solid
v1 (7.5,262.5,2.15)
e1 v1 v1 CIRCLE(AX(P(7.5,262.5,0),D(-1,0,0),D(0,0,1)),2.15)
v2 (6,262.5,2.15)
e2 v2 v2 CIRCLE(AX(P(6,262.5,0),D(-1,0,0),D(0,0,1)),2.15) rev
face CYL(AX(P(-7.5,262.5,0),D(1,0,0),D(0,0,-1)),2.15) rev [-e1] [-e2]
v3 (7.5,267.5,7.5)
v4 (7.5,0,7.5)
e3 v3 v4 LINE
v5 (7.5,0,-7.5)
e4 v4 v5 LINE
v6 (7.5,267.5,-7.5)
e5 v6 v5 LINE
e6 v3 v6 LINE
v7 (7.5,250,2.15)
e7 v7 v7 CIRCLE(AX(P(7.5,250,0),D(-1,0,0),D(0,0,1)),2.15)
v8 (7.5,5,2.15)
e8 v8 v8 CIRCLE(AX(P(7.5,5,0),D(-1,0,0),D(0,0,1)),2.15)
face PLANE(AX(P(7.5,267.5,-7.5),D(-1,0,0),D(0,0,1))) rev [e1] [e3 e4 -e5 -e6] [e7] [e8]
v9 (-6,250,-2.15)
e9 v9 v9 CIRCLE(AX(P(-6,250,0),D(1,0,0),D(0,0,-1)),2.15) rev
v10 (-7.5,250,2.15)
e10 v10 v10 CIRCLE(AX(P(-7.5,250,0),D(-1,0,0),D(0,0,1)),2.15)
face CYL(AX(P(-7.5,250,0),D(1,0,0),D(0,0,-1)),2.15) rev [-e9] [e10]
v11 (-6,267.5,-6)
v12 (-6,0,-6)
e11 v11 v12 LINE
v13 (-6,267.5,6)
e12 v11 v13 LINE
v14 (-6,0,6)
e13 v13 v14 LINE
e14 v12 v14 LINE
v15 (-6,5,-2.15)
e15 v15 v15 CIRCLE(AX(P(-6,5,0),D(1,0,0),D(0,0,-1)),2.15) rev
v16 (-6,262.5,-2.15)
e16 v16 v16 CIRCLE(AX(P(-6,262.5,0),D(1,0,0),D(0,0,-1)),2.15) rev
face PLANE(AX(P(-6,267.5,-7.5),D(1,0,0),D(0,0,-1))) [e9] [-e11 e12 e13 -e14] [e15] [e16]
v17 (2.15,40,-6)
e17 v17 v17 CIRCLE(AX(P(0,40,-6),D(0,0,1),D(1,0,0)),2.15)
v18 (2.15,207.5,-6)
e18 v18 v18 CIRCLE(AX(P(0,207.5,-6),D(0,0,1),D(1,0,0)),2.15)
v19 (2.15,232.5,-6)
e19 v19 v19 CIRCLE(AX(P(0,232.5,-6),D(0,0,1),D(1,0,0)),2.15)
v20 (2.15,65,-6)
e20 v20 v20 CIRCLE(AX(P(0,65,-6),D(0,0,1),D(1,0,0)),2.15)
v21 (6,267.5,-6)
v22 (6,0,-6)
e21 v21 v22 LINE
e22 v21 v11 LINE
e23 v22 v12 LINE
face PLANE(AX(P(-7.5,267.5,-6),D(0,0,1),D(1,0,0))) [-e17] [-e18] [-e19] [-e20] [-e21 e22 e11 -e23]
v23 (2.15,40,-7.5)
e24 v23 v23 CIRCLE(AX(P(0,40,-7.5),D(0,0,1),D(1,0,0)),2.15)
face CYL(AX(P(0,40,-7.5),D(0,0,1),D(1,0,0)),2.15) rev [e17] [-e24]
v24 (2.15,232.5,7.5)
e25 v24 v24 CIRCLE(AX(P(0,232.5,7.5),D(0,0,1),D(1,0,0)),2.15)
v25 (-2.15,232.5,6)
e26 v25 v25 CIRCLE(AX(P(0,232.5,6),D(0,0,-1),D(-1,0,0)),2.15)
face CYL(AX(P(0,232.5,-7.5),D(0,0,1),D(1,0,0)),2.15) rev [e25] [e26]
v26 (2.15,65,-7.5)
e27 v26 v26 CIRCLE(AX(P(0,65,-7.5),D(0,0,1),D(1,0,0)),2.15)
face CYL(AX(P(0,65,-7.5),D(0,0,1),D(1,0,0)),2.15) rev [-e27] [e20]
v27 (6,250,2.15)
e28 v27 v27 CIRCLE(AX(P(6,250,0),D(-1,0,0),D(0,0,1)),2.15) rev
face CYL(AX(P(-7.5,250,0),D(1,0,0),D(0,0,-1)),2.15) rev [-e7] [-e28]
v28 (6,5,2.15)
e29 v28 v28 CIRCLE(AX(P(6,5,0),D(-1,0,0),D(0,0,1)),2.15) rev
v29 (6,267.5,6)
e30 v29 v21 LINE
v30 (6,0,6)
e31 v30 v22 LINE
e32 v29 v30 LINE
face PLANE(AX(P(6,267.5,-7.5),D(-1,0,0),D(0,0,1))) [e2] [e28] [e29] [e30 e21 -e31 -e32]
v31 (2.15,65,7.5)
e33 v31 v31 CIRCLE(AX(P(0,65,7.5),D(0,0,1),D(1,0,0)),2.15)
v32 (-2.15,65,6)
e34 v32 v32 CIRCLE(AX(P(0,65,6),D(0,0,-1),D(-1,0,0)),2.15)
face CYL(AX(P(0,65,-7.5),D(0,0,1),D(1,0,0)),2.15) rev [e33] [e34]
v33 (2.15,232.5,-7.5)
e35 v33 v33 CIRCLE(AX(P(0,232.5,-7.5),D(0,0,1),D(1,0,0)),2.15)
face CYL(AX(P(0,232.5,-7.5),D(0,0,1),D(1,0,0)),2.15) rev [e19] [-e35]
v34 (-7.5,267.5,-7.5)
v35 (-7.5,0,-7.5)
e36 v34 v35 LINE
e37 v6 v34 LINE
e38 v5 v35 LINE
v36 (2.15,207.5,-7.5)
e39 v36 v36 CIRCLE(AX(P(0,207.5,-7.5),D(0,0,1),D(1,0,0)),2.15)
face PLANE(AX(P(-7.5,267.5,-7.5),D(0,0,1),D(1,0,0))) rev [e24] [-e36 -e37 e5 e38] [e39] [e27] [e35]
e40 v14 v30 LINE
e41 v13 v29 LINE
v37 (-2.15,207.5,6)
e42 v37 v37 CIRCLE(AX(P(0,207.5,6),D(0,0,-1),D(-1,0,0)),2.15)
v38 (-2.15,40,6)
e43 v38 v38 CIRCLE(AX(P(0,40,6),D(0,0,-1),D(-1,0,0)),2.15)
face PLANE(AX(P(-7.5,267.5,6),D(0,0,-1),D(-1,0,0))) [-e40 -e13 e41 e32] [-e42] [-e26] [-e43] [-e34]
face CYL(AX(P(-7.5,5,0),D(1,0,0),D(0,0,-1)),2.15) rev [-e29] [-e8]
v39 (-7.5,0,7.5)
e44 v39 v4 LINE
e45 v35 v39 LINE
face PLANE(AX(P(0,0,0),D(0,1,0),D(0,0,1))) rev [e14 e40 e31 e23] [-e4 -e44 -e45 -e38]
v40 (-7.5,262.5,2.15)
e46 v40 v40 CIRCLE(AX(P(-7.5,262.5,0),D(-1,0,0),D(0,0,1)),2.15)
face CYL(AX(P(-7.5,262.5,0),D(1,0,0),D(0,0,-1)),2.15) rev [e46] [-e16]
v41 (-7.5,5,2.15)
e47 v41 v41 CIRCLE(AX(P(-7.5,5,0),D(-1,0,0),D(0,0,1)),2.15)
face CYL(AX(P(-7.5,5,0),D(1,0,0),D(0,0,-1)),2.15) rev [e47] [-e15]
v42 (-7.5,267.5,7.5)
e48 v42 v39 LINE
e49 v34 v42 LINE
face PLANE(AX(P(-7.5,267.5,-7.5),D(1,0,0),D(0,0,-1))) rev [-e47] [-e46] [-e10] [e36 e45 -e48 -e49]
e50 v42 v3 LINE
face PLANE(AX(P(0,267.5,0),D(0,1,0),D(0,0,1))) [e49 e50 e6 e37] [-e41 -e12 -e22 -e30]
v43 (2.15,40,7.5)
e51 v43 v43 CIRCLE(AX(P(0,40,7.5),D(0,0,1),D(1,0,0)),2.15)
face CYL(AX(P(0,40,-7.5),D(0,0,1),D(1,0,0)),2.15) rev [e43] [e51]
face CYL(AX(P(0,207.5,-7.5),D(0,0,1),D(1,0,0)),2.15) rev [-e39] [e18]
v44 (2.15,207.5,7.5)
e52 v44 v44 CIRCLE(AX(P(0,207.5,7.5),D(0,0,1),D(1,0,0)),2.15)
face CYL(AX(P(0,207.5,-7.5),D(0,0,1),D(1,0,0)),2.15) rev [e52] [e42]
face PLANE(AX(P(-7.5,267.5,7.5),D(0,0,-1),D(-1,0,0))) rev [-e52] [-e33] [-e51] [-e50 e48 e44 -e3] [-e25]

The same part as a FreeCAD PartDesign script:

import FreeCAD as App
import Part
import Sketcher

V = App.Vector
Q = App.Units.Quantity

doc = App.newDocument("Part")
body = doc.addObject("PartDesign::Body", "Body")

sketch1 = doc.addObject("Sketcher::SketchObject", "Sketch")
body.addObject(sketch1)
sketch1.AttachmentSupport = (doc.XZ_Plane, [""])
sketch1.MapMode = "FlatFace"
sketch1.addGeometry([
    Part.LineSegment(V(-8, -8, 0), V(-8, 8, 0)),
    Part.LineSegment(V(-8, 8, 0), V(8, 8, 0)),
    Part.LineSegment(V(8, 8, 0), V(8, -8, 0)),
    Part.LineSegment(V(8, -8, 0), V(-8, -8, 0)),
    Part.LineSegment(V(6, 6, 0), V(-6, 6, 0)),
    Part.LineSegment(V(-6, 6, 0), V(-6, -6, 0)),
    Part.LineSegment(V(-6, -6, 0), V(6, -6, 0)),
    Part.LineSegment(V(6, -6, 0), V(6, 6, 0)),
], False)
sketch1.addConstraint([
    Sketcher.Constraint("Coincident", 0, 2, 1, 1),
    Sketcher.Constraint("Coincident", 1, 2, 2, 1),
    Sketcher.Constraint("Coincident", 2, 2, 3, 1),
    Sketcher.Constraint("Coincident", 3, 2, 0, 1),
    Sketcher.Constraint("Coincident", 4, 2, 5, 1),
    Sketcher.Constraint("Coincident", 5, 2, 6, 1),
    Sketcher.Constraint("Coincident", 6, 2, 7, 1),
    Sketcher.Constraint("Coincident", 7, 2, 4, 1),
    Sketcher.Constraint("Vertical", 0),
    Sketcher.Constraint("Horizontal", 1),
    Sketcher.Constraint("Vertical", 2),
    Sketcher.Constraint("Horizontal", 3),
    Sketcher.Constraint("Horizontal", 4),
    Sketcher.Constraint("Vertical", 5),
    Sketcher.Constraint("Horizontal", 6),
    Sketcher.Constraint("Vertical", 7),
    Sketcher.Constraint("Symmetric", 0, 2, 2, 2, -1, 1),
    Sketcher.Constraint("Symmetric", 4, 2, 6, 2, -1, 1),
    Sketcher.Constraint("Equal", 3, 0),
    Sketcher.Constraint("Equal", 6, 5),
    Sketcher.Constraint("DistanceX", 1, 1, 1, 2, Q("15 mm")),
    Sketcher.Constraint("DistanceX", 4, 2, 4, 1, Q("12 mm")),
])
pad1 = doc.addObject("PartDesign::Pad", "Pad")
body.addObject(pad1)
pad1.Profile = sketch1
pad1.Length = 267.5
pad1.Reversed = True

sketch2 = doc.addObject("Sketcher::SketchObject", "Sketch001")
body.addObject(sketch2)
sketch2.AttachmentSupport = (doc.YZ_Plane, [""])
sketch2.MapMode = "FlatFace"
sketch2.AttachmentOffset = App.Placement(V(0, 0, 7.5), App.Rotation())
sketch2.addGeometry([
    Part.Circle(V(5, 0, 0), V(0, 0, 1), 2.1),
    Part.Circle(V(262.5, 0, 0), V(0, 0, 1), 2.1),
    Part.Circle(V(250, 0, 0), V(0, 0, 1), 2.1),
], False)
sketch2.addConstraint([
    Sketcher.Constraint("Equal", 0, 1),
    Sketcher.Constraint("Equal", 1, 2),
    Sketcher.Constraint("PointOnObject", 0, 3, -1),
    Sketcher.Constraint("PointOnObject", 1, 3, -1),
    Sketcher.Constraint("PointOnObject", 2, 3, -1),
    Sketcher.Constraint("Diameter", 0, Q("4.3 mm")),
    Sketcher.Constraint("DistanceX", -1, 1, 0, 3, Q("5 mm")),
    Sketcher.Constraint("DistanceX", -1, 1, 2, 3, Q("250 mm")),
    Sketcher.Constraint("DistanceX", -1, 1, 1, 3, Q("262.5 mm")),
])
pocket1 = doc.addObject("PartDesign::Pocket", "Pocket")
body.addObject(pocket1)
pocket1.Profile = sketch2
pocket1.Type = "ThroughAll"

sketch3 = doc.addObject("Sketcher::SketchObject", "Sketch002")
body.addObject(sketch3)
sketch3.AttachmentSupport = (doc.XY_Plane, [""])
sketch3.MapMode = "FlatFace"
sketch3.AttachmentOffset = App.Placement(V(0, 0, 7.5), App.Rotation())
sketch3.addGeometry([
    Part.Circle(V(0, 207.5, 0), V(0, 0, 1), 2.1),
    Part.Circle(V(0, 232.5, 0), V(0, 0, 1), 2.1),
    Part.Circle(V(0, 65, 0), V(0, 0, 1), 2.1),
    Part.Circle(V(0, 40, 0), V(0, 0, 1), 2.1),
], False)
sketch3.addConstraint([
    Sketcher.Constraint("Equal", 0, 1),
    Sketcher.Constraint("Equal", 1, 2),
    Sketcher.Constraint("Equal", 2, 3),
    Sketcher.Constraint("PointOnObject", 0, 3, -2),
    Sketcher.Constraint("PointOnObject", 1, 3, -2),
    Sketcher.Constraint("PointOnObject", 2, 3, -2),
    Sketcher.Constraint("PointOnObject", 3, 3, -2),
    Sketcher.Constraint("Diameter", 0, Q("4.3 mm")),
    Sketcher.Constraint("DistanceY", -1, 1, 2, 3, Q("65 mm")),
    Sketcher.Constraint("DistanceY", -1, 1, 3, 3, Q("40 mm")),
    Sketcher.Constraint("DistanceY", 0, 3, 1, 3, Q("25 mm")),
    Sketcher.Constraint("DistanceY", -1, 1, 0, 3, Q("207.5 mm")),
])
pocket2 = doc.addObject("PartDesign::Pocket", "Pocket001")
body.addObject(pocket2)
pocket2.Profile = sketch3
pocket2.Type = "ThroughAll"

doc.recompute()
